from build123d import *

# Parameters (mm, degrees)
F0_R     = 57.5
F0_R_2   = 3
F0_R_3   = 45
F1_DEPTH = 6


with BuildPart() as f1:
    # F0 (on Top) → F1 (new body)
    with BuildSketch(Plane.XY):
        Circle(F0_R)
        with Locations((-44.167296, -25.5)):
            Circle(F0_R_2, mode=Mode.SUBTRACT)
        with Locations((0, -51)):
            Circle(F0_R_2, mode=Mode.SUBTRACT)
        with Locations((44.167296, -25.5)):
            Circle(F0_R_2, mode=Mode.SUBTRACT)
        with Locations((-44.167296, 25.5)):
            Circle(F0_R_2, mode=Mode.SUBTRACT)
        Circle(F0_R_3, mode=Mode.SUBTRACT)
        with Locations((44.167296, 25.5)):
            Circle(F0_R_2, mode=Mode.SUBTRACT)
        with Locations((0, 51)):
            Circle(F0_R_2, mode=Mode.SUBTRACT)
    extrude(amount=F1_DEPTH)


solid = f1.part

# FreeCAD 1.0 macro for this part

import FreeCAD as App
import Part
import Sketcher
Q = App.Units.Quantity

doc = App.newDocument("Part")
body = doc.addObject("PartDesign::Body", "Body")

# Sketch on XY plane
sketch1 = body.newObject("Sketcher::SketchObject", "Sketch")
sketch1.AttachmentSupport = (doc.getObject("XY_Plane"), [""])
sketch1.MapMode = "FlatFace"
sketch1.addGeometry([
    Part.Circle(App.Vector(0, 0, 0), App.Vector(0, 0, 1), 57.5),  # 0
    Part.Circle(App.Vector(-44.2, -25.5, 0), App.Vector(0, 0, 1), 3),  # 1
    Part.Circle(App.Vector(0, -51, 0), App.Vector(0, 0, 1), 3),  # 2
    Part.Circle(App.Vector(44.2, -25.5, 0), App.Vector(0, 0, 1), 3),  # 3
    Part.Circle(App.Vector(-44.2, 25.5, 0), App.Vector(0, 0, 1), 3),  # 4
    Part.Circle(App.Vector(0, 0, 0), App.Vector(0, 0, 1), 45),  # 5
    Part.Circle(App.Vector(44.2, 25.5, 0), App.Vector(0, 0, 1), 3),  # 6
    Part.Circle(App.Vector(0, 51, 0), App.Vector(0, 0, 1), 3),  # 7
], False)
sketch1.addConstraint([
    Sketcher.Constraint("Coincident", 0, 3, -1, 1),
    Sketcher.Constraint("Coincident", 5, 3, -1, 1),
    Sketcher.Constraint("Equal", 1, 2),
    Sketcher.Constraint("Equal", 2, 3),
    Sketcher.Constraint("Equal", 3, 4),
    Sketcher.Constraint("Equal", 4, 6),
    Sketcher.Constraint("Equal", 6, 7),
    Sketcher.Constraint("Symmetric", 3, 3, 4, 3, -1, 1),
    Sketcher.Constraint("Symmetric", 1, 3, 6, 3, -1, 1),
    Sketcher.Constraint("Symmetric", 2, 3, 7, 3, -1, 1),
    Sketcher.Constraint("Symmetric", 1, 3, 3, 3, -2),
    Sketcher.Constraint("PointOnObject", 2, 3, -2),
    Sketcher.Constraint("Diameter", 0, Q("115 mm")),
    Sketcher.Constraint("Diameter", 1, Q("6 mm")),
    Sketcher.Constraint("Diameter", 5, Q("90 mm")),
    Sketcher.Constraint("DistanceY", 2, 3, -1, 1, Q("51 mm")),
    Sketcher.Constraint("DistanceY", 1, 3, 4, 3, Q("51 mm")),
    Sketcher.Constraint("DistanceX", 1, 3, 3, 3, Q("88.334592 mm")),
])
pad1 = body.newObject("PartDesign::Pad", "Pad")
pad1.Profile = sketch1
pad1.Length = 6

doc.recompute()
